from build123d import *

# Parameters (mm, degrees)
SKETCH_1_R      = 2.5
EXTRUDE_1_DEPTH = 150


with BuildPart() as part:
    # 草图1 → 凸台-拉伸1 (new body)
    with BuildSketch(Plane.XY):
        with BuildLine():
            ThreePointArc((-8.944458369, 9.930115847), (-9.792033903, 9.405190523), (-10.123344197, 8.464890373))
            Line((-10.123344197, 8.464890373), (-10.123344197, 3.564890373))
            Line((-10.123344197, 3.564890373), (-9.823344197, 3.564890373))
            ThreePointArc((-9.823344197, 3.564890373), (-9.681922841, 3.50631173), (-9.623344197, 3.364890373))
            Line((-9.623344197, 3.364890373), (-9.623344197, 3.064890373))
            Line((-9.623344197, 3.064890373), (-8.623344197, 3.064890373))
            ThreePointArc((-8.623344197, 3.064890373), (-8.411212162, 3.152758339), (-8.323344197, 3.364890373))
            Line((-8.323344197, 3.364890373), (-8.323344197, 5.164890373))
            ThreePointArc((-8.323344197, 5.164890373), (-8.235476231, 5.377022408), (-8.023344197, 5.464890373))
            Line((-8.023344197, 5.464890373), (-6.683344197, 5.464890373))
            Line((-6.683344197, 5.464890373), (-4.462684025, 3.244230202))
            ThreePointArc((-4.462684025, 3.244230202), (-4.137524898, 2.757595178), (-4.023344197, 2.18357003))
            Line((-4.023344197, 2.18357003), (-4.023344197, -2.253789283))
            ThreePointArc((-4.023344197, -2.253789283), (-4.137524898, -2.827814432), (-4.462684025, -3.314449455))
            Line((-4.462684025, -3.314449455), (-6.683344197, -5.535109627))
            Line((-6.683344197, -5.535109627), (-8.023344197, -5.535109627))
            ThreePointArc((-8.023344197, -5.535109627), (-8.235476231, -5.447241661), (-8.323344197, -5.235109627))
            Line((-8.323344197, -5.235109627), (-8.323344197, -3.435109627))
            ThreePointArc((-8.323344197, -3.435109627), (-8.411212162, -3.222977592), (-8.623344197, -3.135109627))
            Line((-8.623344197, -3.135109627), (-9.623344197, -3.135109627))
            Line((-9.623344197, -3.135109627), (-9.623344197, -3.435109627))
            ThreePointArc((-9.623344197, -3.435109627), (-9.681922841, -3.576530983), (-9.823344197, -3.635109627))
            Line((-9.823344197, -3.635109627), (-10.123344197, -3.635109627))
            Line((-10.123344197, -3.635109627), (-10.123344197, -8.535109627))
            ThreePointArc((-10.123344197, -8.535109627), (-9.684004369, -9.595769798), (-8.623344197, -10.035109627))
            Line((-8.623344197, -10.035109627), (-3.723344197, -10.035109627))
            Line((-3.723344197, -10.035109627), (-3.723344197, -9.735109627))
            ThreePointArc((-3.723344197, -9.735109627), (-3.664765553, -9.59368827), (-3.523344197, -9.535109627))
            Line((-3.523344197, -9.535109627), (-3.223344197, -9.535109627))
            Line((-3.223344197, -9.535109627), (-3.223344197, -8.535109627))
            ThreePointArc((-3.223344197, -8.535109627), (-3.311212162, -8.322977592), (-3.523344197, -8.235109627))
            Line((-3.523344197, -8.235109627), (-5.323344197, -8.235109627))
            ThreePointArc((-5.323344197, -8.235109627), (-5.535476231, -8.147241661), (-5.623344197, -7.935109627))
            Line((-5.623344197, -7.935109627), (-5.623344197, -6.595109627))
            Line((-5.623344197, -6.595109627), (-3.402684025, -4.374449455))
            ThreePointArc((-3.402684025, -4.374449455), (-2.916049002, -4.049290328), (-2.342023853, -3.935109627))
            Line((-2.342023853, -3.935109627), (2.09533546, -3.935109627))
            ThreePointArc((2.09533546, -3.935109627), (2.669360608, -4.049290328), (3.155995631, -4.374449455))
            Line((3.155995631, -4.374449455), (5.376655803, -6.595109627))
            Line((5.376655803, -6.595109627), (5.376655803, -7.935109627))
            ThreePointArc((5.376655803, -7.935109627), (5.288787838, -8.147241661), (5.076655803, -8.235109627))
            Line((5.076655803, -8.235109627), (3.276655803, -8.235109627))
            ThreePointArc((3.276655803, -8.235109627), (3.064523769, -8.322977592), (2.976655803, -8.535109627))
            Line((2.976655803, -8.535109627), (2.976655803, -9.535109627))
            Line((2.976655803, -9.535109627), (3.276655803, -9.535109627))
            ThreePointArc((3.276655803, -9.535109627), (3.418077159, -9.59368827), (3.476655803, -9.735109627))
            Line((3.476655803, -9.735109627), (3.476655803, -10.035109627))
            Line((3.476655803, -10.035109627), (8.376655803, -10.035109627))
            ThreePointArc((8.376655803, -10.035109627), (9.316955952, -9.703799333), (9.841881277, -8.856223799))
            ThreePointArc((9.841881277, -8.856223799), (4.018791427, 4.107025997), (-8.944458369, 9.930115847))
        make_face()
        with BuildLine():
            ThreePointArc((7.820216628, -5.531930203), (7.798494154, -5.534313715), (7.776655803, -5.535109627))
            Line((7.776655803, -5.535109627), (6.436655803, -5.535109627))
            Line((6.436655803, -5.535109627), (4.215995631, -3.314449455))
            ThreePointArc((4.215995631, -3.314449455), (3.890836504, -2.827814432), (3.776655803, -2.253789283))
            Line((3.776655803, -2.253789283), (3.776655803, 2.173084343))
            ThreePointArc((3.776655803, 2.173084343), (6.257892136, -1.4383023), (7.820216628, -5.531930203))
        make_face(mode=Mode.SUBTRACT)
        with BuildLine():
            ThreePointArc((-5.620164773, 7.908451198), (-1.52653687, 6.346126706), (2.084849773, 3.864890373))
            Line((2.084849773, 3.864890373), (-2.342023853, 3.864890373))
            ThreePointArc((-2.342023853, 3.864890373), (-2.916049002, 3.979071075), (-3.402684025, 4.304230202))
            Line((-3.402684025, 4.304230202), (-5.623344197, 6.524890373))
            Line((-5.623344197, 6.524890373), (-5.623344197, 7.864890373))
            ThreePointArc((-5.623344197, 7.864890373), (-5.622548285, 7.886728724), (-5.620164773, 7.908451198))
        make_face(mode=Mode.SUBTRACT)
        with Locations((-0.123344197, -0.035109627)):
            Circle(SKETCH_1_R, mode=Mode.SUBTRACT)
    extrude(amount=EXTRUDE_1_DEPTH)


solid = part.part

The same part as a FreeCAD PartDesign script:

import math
import FreeCAD as App
import Part
import Sketcher
from FreeCAD import Vector

doc = App.newDocument("Part")
params = doc.addObject("Spreadsheet::Sheet", "Params")
for row, (alias, value) in enumerate([
    ("sketch1_diameter", "5 mm"),
    ("sketch1_radius", "20 mm"),
    ("sketch1_radius2", "1.5 mm"),
    ("sketch1_radius3", "0.2 mm"),
    ("sketch1_radius4", "0.3 mm"),
    ("pad1_length", "150 mm"),
], start=1):
    params.set(f"A{row}", alias)
    params.set(f"B{row}", "=" + value)
    params.setAlias(f"B{row}", alias)

body = doc.addObject("PartDesign::Body", "Body")

# Sketch on XY plane
sketch1 = doc.addObject("Sketcher::SketchObject", "Sketch")
body.addObject(sketch1)
sketch1.AttachmentSupport = (doc.XY_Plane, [""])
sketch1.MapMode = "FlatFace"
sketch1.addGeometry([
    Part.ArcOfCircle(Part.Circle(Vector(-8.623, 8.465, 0), Vector(0, 0, 1), 1.5), math.radians(102), math.radians(180)),  # 0
    Part.LineSegment(Vector(-10.123, 8.465, 0), Vector(-10.123, 3.565, 0)),  # 1
    Part.LineSegment(Vector(-10.123, 3.565, 0), Vector(-9.823, 3.565, 0)),  # 2
    Part.ArcOfCircle(Part.Circle(Vector(-9.823, 3.365, 0), Vector(0, 0, 1), 0.2), math.radians(0), math.radians(90)),  # 3
    Part.LineSegment(Vector(-9.623, 3.365, 0), Vector(-9.623, 3.065, 0)),  # 4
    Part.LineSegment(Vector(-9.623, 3.065, 0), Vector(-8.623, 3.065, 0)),  # 5
    Part.ArcOfCircle(Part.Circle(Vector(-8.623, 3.365, 0), Vector(0, 0, 1), 0.3), math.radians(-90), math.radians(0)),  # 6
    Part.LineSegment(Vector(-8.323, 3.365, 0), Vector(-8.323, 5.165, 0)),  # 7
    Part.ArcOfCircle(Part.Circle(Vector(-8.023, 5.165, 0), Vector(0, 0, 1), 0.3), math.radians(90), math.radians(180)),  # 8
    Part.LineSegment(Vector(-8.023, 5.465, 0), Vector(-6.683, 5.465, 0)),  # 9
    Part.LineSegment(Vector(-6.683, 5.465, 0), Vector(-4.463, 3.244, 0)),  # 10
    Part.ArcOfCircle(Part.Circle(Vector(-5.523, 2.184, 0), Vector(0, 0, 1), 1.5), math.radians(0), math.radians(45)),  # 11
    Part.LineSegment(Vector(-4.023, 2.184, 0), Vector(-4.023, -2.254, 0)),  # 12
    Part.ArcOfCircle(Part.Circle(Vector(-5.523, -2.254, 0), Vector(0, 0, 1), 1.5), math.radians(-45), math.radians(0)),  # 13
    Part.LineSegment(Vector(-4.463, -3.314, 0), Vector(-6.683, -5.535, 0)),  # 14
    Part.LineSegment(Vector(-6.683, -5.535, 0), Vector(-8.023, -5.535, 0)),  # 15
    Part.ArcOfCircle(Part.Circle(Vector(-8.023, -5.235, 0), Vector(0, 0, 1), 0.3), math.radians(-180), math.radians(-90)),  # 16
    Part.LineSegment(Vector(-8.323, -5.235, 0), Vector(-8.323, -3.435, 0)),  # 17
    Part.ArcOfCircle(Part.Circle(Vector(-8.623, -3.435, 0), Vector(0, 0, 1), 0.3), math.radians(0), math.radians(90)),  # 18
    Part.LineSegment(Vector(-8.623, -3.135, 0), Vector(-9.623, -3.135, 0)),  # 19
    Part.LineSegment(Vector(-9.623, -3.135, 0), Vector(-9.623, -3.435, 0)),  # 20
    Part.ArcOfCircle(Part.Circle(Vector(-9.823, -3.435, 0), Vector(0, 0, 1), 0.2), math.radians(-90), math.radians(0)),  # 21
    Part.LineSegment(Vector(-9.823, -3.635, 0), Vector(-10.123, -3.635, 0)),  # 22
    Part.LineSegment(Vector(-10.123, -3.635, 0), Vector(-10.123, -8.535, 0)),  # 23
    Part.ArcOfCircle(Part.Circle(Vector(-8.623, -8.535, 0), Vector(0, 0, 1), 1.5), math.radians(-180), math.radians(-90)),  # 24
    Part.LineSegment(Vector(-8.623, -10.035, 0), Vector(-3.723, -10.035, 0)),  # 25
    Part.LineSegment(Vector(-3.723, -10.035, 0), Vector(-3.723, -9.735, 0)),  # 26
    Part.ArcOfCircle(Part.Circle(Vector(-3.523, -9.735, 0), Vector(0, 0, 1), 0.2), math.radians(90), math.radians(180)),  # 27
    Part.LineSegment(Vector(-3.523, -9.535, 0), Vector(-3.223, -9.535, 0)),  # 28
    Part.LineSegment(Vector(-3.223, -9.535, 0), Vector(-3.223, -8.535, 0)),  # 29
    Part.ArcOfCircle(Part.Circle(Vector(-3.523, -8.535, 0), Vector(0, 0, 1), 0.3), math.radians(0), math.radians(90)),  # 30
    Part.LineSegment(Vector(-3.523, -8.235, 0), Vector(-5.323, -8.235, 0)),  # 31
    Part.ArcOfCircle(Part.Circle(Vector(-5.323, -7.935, 0), Vector(0, 0, 1), 0.3), math.radians(-180), math.radians(-90)),  # 32
    Part.LineSegment(Vector(-5.623, -7.935, 0), Vector(-5.623, -6.595, 0)),  # 33
    Part.LineSegment(Vector(-5.623, -6.595, 0), Vector(-3.403, -4.374, 0)),  # 34
    Part.ArcOfCircle(Part.Circle(Vector(-2.342, -5.435, 0), Vector(0, 0, 1), 1.5), math.radians(90), math.radians(135)),  # 35
    Part.LineSegment(Vector(-2.342, -3.935, 0), Vector(2.095, -3.935, 0)),  # 36
    Part.ArcOfCircle(Part.Circle(Vector(2.095, -5.435, 0), Vector(0, 0, 1), 1.5), math.radians(45), math.radians(90)),  # 37
    Part.LineSegment(Vector(3.156, -4.374, 0), Vector(5.377, -6.595, 0)),  # 38
    Part.LineSegment(Vector(5.377, -6.595, 0), Vector(5.377, -7.935, 0)),  # 39
    Part.ArcOfCircle(Part.Circle(Vector(5.077, -7.935, 0), Vector(0, 0, 1), 0.3), math.radians(-90), math.radians(0)),  # 40
    Part.LineSegment(Vector(5.077, -8.235, 0), Vector(3.277, -8.235, 0)),  # 41
    Part.ArcOfCircle(Part.Circle(Vector(3.277, -8.535, 0), Vector(0, 0, 1), 0.3), math.radians(90), math.radians(180)),  # 42
    Part.LineSegment(Vector(2.977, -8.535, 0), Vector(2.977, -9.535, 0)),  # 43
    Part.LineSegment(Vector(2.977, -9.535, 0), Vector(3.277, -9.535, 0)),  # 44
    Part.ArcOfCircle(Part.Circle(Vector(3.277, -9.735, 0), Vector(0, 0, 1), 0.2), math.radians(0), math.radians(90)),  # 45
    Part.LineSegment(Vector(3.477, -9.735, 0), Vector(3.477, -10.035, 0)),  # 46
    Part.LineSegment(Vector(3.477, -10.035, 0), Vector(8.377, -10.035, 0)),  # 47
    Part.ArcOfCircle(Part.Circle(Vector(8.377, -8.535, 0), Vector(0, 0, 1), 1.5), math.radians(-90), math.radians(-12)),  # 48
    Part.ArcOfCircle(Part.Circle(Vector(-10.123, -10.035, 0), Vector(0, 0, 1), 20), math.radians(3), math.radians(87)),  # 49
    Part.Circle(Vector(-0.123, -0.035, 0), Vector(0, 0, 1), 2.5),  # 50
    Part.ArcOfCircle(Part.Circle(Vector(-10.123, -10.035, 0), Vector(0, 0, 1), 18.5), math.radians(14), math.radians(41)),  # 51
    Part.ArcOfCircle(Part.Circle(Vector(7.777, -5.235, 0), Vector(0, 0, 1), 0.3), math.radians(-90), math.radians(-81.65)),  # 52
    Part.LineSegment(Vector(7.777, -5.535, 0), Vector(6.437, -5.535, 0)),  # 53
    Part.LineSegment(Vector(6.437, -5.535, 0), Vector(4.216, -3.314, 0)),  # 54
    Part.ArcOfCircle(Part.Circle(Vector(5.277, -2.254, 0), Vector(0, 0, 1), 1.5), math.radians(180), math.radians(225)),  # 55
    Part.LineSegment(Vector(3.777, -2.254, 0), Vector(3.777, 2.173, 0)),  # 56
    Part.ArcOfCircle(Part.Circle(Vector(-5.323, 7.865, 0), Vector(0, 0, 1), 0.3), math.radians(171.65), math.radians(180)),  # 57
    Part.ArcOfCircle(Part.Circle(Vector(-10.123, -10.035, 0), Vector(0, 0, 1), 18.5), math.radians(49), math.radians(76)),  # 58
    Part.LineSegment(Vector(2.085, 3.865, 0), Vector(-2.342, 3.865, 0)),  # 59
    Part.ArcOfCircle(Part.Circle(Vector(-2.342, 5.365, 0), Vector(0, 0, 1), 1.5), math.radians(-135), math.radians(-90)),  # 60
    Part.LineSegment(Vector(-3.403, 4.304, 0), Vector(-5.623, 6.525, 0)),  # 61
    Part.LineSegment(Vector(-5.623, 6.525, 0), Vector(-5.623, 7.865, 0)),  # 62
], False)
sketch1.addConstraint([
    Sketcher.Constraint("Tangent", 0, 2, 1, 1),
    Sketcher.Constraint("Coincident", 1, 2, 2, 1),
    Sketcher.Constraint("Tangent", 2, 2, 3, 2),
    Sketcher.Constraint("Tangent", 3, 1, 4, 1),
    Sketcher.Constraint("Coincident", 4, 2, 5, 1),
    Sketcher.Constraint("Tangent", 5, 2, 6, 1),
    Sketcher.Constraint("Tangent", 6, 2, 7, 1),
    Sketcher.Constraint("Tangent", 7, 2, 8, 2),
    Sketcher.Constraint("Tangent", 8, 1, 9, 1),
    Sketcher.Constraint("Coincident", 9, 2, 10, 1),
    Sketcher.Constraint("Tangent", 10, 2, 11, 2),
    Sketcher.Constraint("Tangent", 11, 1, 12, 1),
    Sketcher.Constraint("Tangent", 12, 2, 13, 2),
    Sketcher.Constraint("Tangent", 13, 1, 14, 1),
    Sketcher.Constraint("Coincident", 14, 2, 15, 1),
    Sketcher.Constraint("Tangent", 15, 2, 16, 2),
    Sketcher.Constraint("Tangent", 16, 1, 17, 1),
    Sketcher.Constraint("Tangent", 17, 2, 18, 1),
    Sketcher.Constraint("Tangent", 18, 2, 19, 1),
    Sketcher.Constraint("Coincident", 19, 2, 20, 1),
    Sketcher.Constraint("Tangent", 20, 2, 21, 2),
    Sketcher.Constraint("Tangent", 21, 1, 22, 1),
    Sketcher.Constraint("Coincident", 22, 2, 23, 1),
    Sketcher.Constraint("Tangent", 23, 2, 24, 1),
    Sketcher.Constraint("Tangent", 24, 2, 25, 1),
    Sketcher.Constraint("Coincident", 25, 2, 26, 1),
    Sketcher.Constraint("Tangent", 26, 2, 27, 2),
    Sketcher.Constraint("Tangent", 27, 1, 28, 1),
    Sketcher.Constraint("Coincident", 28, 2, 29, 1),
    Sketcher.Constraint("Tangent", 29, 2, 30, 1),
    Sketcher.Constraint("Tangent", 30, 2, 31, 1),
    Sketcher.Constraint("Tangent", 31, 2, 32, 2),
    Sketcher.Constraint("Tangent", 32, 1, 33, 1),
    Sketcher.Constraint("Coincident", 33, 2, 34, 1),
    Sketcher.Constraint("Tangent", 34, 2, 35, 2),
    Sketcher.Constraint("Tangent", 35, 1, 36, 1),
    Sketcher.Constraint("Tangent", 36, 2, 37, 2),
    Sketcher.Constraint("Tangent", 37, 1, 38, 1),
    Sketcher.Constraint("Coincident", 38, 2, 39, 1),
    Sketcher.Constraint("Tangent", 39, 2, 40, 2),
    Sketcher.Constraint("Tangent", 40, 1, 41, 1),
    Sketcher.Constraint("Tangent", 41, 2, 42, 1),
    Sketcher.Constraint("Tangent", 42, 2, 43, 1),
    Sketcher.Constraint("Coincident", 43, 2, 44, 1),
    Sketcher.Constraint("Tangent", 44, 2, 45, 2),
    Sketcher.Constraint("Tangent", 45, 1, 46, 1),
    Sketcher.Constraint("Coincident", 46, 2, 47, 1),
    Sketcher.Constraint("Tangent", 47, 2, 48, 1),
    Sketcher.Constraint("Coincident", 48, 2, 49, 1),
    Sketcher.Constraint("Coincident", 49, 2, 0, 1),
    Sketcher.Constraint("Coincident", 51, 1, 52, 2),
    Sketcher.Constraint("Tangent", 52, 1, 53, 1),
    Sketcher.Constraint("Coincident", 53, 2, 54, 1),
    Sketcher.Constraint("Tangent", 54, 2, 55, 2),
    Sketcher.Constraint("Tangent", 55, 1, 56, 1),
    Sketcher.Constraint("Coincident", 56, 2, 51, 2),
    Sketcher.Constraint("Coincident", 57, 1, 58, 2),
    Sketcher.Constraint("Coincident", 58, 1, 59, 1),
    Sketcher.Constraint("Tangent", 59, 2, 60, 2),
    Sketcher.Constraint("Tangent", 60, 1, 61, 1),
    Sketcher.Constraint("Coincident", 61, 2, 62, 1),
    Sketcher.Constraint("Tangent", 62, 2, 57, 2),
    Sketcher.Constraint("Vertical", 1),
    Sketcher.Constraint("Horizontal", 2),
    Sketcher.Constraint("Vertical", 4),
    Sketcher.Constraint("Horizontal", 5),
    Sketcher.Constraint("Vertical", 7),
    Sketcher.Constraint("Horizontal", 9),
    Sketcher.Constraint("Vertical", 12),
    Sketcher.Constraint("Horizontal", 15),
    Sketcher.Constraint("Vertical", 17),
    Sketcher.Constraint("Horizontal", 19),
    Sketcher.Constraint("Vertical", 20),
    Sketcher.Constraint("Horizontal", 22),
    Sketcher.Constraint("Vertical", 23),
    Sketcher.Constraint("Horizontal", 25),
    Sketcher.Constraint("Vertical", 26),
    Sketcher.Constraint("Horizontal", 28),
    Sketcher.Constraint("Vertical", 29),
    Sketcher.Constraint("Horizontal", 31),
    Sketcher.Constraint("Vertical", 33),
    Sketcher.Constraint("Horizontal", 36),
    Sketcher.Constraint("Vertical", 39),
    Sketcher.Constraint("Horizontal", 41),
    Sketcher.Constraint("Vertical", 43),
    Sketcher.Constraint("Horizontal", 44),
    Sketcher.Constraint("Vertical", 46),
    Sketcher.Constraint("Horizontal", 47),
    Sketcher.Constraint("Horizontal", 53),
    Sketcher.Constraint("Vertical", 56),
    Sketcher.Constraint("Horizontal", 59),
    Sketcher.Constraint("Vertical", 62),
    Sketcher.Constraint("Coincident", 51, 3, 49, 3),
    Sketcher.Constraint("Coincident", 58, 3, 49, 3),
    Sketcher.Constraint("Equal", 6, 8),
    Sketcher.Constraint("Equal", 0, 11),
    Sketcher.Constraint("Equal", 11, 13),
    Sketcher.Constraint("Equal", 8, 16),
    Sketcher.Constraint("Equal", 16, 18),
    Sketcher.Constraint("Equal", 3, 21),
    Sketcher.Constraint("Equal", 13, 24),
    Sketcher.Constraint("Equal", 21, 27),
    Sketcher.Constraint("Equal", 18, 30),
    Sketcher.Constraint("Equal", 30, 32),
    Sketcher.Constraint("Equal", 24, 35),
    Sketcher.Constraint("Equal", 35, 37),
    Sketcher.Constraint("Equal", 32, 40),
    Sketcher.Constraint("Equal", 40, 42),
    Sketcher.Constraint("Equal", 27, 45),
    Sketcher.Constraint("Equal", 37, 48),
    Sketcher.Constraint("Equal", 42, 52),
    Sketcher.Constraint("Equal", 48, 55),
    Sketcher.Constraint("Equal", 52, 57),
    Sketcher.Constraint("Equal", 51, 58),
    Sketcher.Constraint("Equal", 55, 60),
    Sketcher.Constraint("Perpendicular", 10, 14),
    Sketcher.Constraint("Parallel", 14, 34),
    Sketcher.Constraint("Perpendicular", 34, 38),
    Sketcher.Constraint("Parallel", 38, 54),
    Sketcher.Constraint("Parallel", 54, 61),
    Sketcher.Constraint("Horizontal", 3, 3, 6, 3),
    Sketcher.Constraint("Horizontal", 18, 3, 21, 3),
    Sketcher.Constraint("Horizontal", 24, 3, 30, 3),
    Sketcher.Constraint("Horizontal", 32, 3, 40, 3),
    Sketcher.Constraint("Horizontal", 27, 3, 45, 3),
    Sketcher.Constraint("Horizontal", 42, 3, 48, 3),
    Sketcher.Constraint("Horizontal", 16, 3, 52, 3),
    Sketcher.Constraint("Horizontal", 13, 3, 55, 3),
    Sketcher.Constraint("Horizontal", 58, 3, 24, 2),
    Sketcher.Constraint("Horizontal", 34, 2, 37, 1),
    Sketcher.Constraint("Horizontal", 33, 2, 38, 2),
    Sketcher.Constraint("Vertical", 0, 3, 6, 3),
    Sketcher.Constraint("Vertical", 8, 3, 16, 3),
    Sketcher.Constraint("Vertical", 3, 3, 21, 3),
    Sketcher.Constraint("Vertical", 18, 3, 24, 3),
    Sketcher.Constraint("Vertical", 27, 3, 30, 3),
    Sketcher.Constraint("Vertical", 42, 3, 45, 3),
    Sketcher.Constraint("Vertical", 32, 3, 57, 3),
    Sketcher.Constraint("Vertical", 35, 3, 60, 3),
    Sketcher.Constraint("Vertical", 58, 3, 0, 2),
    Sketcher.Constraint("Vertical", 9, 2, 14, 2),
    Sketcher.Constraint("Equal", 22, 28),
    Sketcher.Constraint("Equal", 31, 41),
    Sketcher.Constraint("Equal", 25, 47),
    Sketcher.Constraint("Equal", 15, 53),
    Sketcher.Constraint("Equal", 47, 1),
    Sketcher.Constraint("Equal", 41, 7),
    Sketcher.Constraint("Equal", 36, 12),
    Sketcher.Constraint("Equal", 7, 17),
    Sketcher.Constraint("Equal", 1, 23),
    Sketcher.Constraint("Equal", 20, 26),
    Sketcher.Constraint("Equal", 53, 33),
    Sketcher.Constraint("Equal", 59, 56),
    Sketcher.Constraint("Equal", 39, 62),
    Sketcher.Constraint("Equal", 14, 34),
    Sketcher.Constraint("Diameter", 50, 5.0),
    Sketcher.Constraint("Radius", 49, 20.0),
    Sketcher.Constraint("Radius", 0, 1.5),
    Sketcher.Constraint("Radius", 3, 0.2),
    Sketcher.Constraint("Radius", 6, 0.3),
    Sketcher.Constraint("Radius", 51, 18.5),
    Sketcher.Constraint("DistanceX", 25, 1, 25, 2, 4.9),
    Sketcher.Constraint("DistanceX", 31, 2, 31, 1, 1.8),
    Sketcher.Constraint("DistanceX", 9, 1, 9, 2, 1.34),
    Sketcher.Constraint("DistanceX", 36, 1, 36, 2, 4.437359),
    Sketcher.Constraint("DistanceX", 59, 2, 59, 1, 4.426874),
    Sketcher.Constraint("DistanceY", -1, 1, 0, 3, 8.46489),
    Sketcher.Constraint("DistanceY", -1, 1, 11, 3, 2.18357),
    Sketcher.Constraint("DistanceY", 50, 3, -1, 1, 0.03511),
    Sketcher.Constraint("DistanceX", -1, 1, 48, 2, 9.841881),
    Sketcher.Constraint("DistanceX", 50, 3, -1, 1, 0.123344),
])
sketch1.setExpression("Constraints[155]", "Params.sketch1_diameter")
sketch1.setExpression("Constraints[156]", "Params.sketch1_radius")
sketch1.setExpression("Constraints[157]", "Params.sketch1_radius2")
sketch1.setExpression("Constraints[158]", "Params.sketch1_radius3")
sketch1.setExpression("Constraints[159]", "Params.sketch1_radius4")
pad1 = doc.addObject("PartDesign::Pad", "Pad")
body.addObject(pad1)
pad1.Profile = sketch1
pad1.setExpression("Length", "Params.pad1_length")

doc.recompute()
